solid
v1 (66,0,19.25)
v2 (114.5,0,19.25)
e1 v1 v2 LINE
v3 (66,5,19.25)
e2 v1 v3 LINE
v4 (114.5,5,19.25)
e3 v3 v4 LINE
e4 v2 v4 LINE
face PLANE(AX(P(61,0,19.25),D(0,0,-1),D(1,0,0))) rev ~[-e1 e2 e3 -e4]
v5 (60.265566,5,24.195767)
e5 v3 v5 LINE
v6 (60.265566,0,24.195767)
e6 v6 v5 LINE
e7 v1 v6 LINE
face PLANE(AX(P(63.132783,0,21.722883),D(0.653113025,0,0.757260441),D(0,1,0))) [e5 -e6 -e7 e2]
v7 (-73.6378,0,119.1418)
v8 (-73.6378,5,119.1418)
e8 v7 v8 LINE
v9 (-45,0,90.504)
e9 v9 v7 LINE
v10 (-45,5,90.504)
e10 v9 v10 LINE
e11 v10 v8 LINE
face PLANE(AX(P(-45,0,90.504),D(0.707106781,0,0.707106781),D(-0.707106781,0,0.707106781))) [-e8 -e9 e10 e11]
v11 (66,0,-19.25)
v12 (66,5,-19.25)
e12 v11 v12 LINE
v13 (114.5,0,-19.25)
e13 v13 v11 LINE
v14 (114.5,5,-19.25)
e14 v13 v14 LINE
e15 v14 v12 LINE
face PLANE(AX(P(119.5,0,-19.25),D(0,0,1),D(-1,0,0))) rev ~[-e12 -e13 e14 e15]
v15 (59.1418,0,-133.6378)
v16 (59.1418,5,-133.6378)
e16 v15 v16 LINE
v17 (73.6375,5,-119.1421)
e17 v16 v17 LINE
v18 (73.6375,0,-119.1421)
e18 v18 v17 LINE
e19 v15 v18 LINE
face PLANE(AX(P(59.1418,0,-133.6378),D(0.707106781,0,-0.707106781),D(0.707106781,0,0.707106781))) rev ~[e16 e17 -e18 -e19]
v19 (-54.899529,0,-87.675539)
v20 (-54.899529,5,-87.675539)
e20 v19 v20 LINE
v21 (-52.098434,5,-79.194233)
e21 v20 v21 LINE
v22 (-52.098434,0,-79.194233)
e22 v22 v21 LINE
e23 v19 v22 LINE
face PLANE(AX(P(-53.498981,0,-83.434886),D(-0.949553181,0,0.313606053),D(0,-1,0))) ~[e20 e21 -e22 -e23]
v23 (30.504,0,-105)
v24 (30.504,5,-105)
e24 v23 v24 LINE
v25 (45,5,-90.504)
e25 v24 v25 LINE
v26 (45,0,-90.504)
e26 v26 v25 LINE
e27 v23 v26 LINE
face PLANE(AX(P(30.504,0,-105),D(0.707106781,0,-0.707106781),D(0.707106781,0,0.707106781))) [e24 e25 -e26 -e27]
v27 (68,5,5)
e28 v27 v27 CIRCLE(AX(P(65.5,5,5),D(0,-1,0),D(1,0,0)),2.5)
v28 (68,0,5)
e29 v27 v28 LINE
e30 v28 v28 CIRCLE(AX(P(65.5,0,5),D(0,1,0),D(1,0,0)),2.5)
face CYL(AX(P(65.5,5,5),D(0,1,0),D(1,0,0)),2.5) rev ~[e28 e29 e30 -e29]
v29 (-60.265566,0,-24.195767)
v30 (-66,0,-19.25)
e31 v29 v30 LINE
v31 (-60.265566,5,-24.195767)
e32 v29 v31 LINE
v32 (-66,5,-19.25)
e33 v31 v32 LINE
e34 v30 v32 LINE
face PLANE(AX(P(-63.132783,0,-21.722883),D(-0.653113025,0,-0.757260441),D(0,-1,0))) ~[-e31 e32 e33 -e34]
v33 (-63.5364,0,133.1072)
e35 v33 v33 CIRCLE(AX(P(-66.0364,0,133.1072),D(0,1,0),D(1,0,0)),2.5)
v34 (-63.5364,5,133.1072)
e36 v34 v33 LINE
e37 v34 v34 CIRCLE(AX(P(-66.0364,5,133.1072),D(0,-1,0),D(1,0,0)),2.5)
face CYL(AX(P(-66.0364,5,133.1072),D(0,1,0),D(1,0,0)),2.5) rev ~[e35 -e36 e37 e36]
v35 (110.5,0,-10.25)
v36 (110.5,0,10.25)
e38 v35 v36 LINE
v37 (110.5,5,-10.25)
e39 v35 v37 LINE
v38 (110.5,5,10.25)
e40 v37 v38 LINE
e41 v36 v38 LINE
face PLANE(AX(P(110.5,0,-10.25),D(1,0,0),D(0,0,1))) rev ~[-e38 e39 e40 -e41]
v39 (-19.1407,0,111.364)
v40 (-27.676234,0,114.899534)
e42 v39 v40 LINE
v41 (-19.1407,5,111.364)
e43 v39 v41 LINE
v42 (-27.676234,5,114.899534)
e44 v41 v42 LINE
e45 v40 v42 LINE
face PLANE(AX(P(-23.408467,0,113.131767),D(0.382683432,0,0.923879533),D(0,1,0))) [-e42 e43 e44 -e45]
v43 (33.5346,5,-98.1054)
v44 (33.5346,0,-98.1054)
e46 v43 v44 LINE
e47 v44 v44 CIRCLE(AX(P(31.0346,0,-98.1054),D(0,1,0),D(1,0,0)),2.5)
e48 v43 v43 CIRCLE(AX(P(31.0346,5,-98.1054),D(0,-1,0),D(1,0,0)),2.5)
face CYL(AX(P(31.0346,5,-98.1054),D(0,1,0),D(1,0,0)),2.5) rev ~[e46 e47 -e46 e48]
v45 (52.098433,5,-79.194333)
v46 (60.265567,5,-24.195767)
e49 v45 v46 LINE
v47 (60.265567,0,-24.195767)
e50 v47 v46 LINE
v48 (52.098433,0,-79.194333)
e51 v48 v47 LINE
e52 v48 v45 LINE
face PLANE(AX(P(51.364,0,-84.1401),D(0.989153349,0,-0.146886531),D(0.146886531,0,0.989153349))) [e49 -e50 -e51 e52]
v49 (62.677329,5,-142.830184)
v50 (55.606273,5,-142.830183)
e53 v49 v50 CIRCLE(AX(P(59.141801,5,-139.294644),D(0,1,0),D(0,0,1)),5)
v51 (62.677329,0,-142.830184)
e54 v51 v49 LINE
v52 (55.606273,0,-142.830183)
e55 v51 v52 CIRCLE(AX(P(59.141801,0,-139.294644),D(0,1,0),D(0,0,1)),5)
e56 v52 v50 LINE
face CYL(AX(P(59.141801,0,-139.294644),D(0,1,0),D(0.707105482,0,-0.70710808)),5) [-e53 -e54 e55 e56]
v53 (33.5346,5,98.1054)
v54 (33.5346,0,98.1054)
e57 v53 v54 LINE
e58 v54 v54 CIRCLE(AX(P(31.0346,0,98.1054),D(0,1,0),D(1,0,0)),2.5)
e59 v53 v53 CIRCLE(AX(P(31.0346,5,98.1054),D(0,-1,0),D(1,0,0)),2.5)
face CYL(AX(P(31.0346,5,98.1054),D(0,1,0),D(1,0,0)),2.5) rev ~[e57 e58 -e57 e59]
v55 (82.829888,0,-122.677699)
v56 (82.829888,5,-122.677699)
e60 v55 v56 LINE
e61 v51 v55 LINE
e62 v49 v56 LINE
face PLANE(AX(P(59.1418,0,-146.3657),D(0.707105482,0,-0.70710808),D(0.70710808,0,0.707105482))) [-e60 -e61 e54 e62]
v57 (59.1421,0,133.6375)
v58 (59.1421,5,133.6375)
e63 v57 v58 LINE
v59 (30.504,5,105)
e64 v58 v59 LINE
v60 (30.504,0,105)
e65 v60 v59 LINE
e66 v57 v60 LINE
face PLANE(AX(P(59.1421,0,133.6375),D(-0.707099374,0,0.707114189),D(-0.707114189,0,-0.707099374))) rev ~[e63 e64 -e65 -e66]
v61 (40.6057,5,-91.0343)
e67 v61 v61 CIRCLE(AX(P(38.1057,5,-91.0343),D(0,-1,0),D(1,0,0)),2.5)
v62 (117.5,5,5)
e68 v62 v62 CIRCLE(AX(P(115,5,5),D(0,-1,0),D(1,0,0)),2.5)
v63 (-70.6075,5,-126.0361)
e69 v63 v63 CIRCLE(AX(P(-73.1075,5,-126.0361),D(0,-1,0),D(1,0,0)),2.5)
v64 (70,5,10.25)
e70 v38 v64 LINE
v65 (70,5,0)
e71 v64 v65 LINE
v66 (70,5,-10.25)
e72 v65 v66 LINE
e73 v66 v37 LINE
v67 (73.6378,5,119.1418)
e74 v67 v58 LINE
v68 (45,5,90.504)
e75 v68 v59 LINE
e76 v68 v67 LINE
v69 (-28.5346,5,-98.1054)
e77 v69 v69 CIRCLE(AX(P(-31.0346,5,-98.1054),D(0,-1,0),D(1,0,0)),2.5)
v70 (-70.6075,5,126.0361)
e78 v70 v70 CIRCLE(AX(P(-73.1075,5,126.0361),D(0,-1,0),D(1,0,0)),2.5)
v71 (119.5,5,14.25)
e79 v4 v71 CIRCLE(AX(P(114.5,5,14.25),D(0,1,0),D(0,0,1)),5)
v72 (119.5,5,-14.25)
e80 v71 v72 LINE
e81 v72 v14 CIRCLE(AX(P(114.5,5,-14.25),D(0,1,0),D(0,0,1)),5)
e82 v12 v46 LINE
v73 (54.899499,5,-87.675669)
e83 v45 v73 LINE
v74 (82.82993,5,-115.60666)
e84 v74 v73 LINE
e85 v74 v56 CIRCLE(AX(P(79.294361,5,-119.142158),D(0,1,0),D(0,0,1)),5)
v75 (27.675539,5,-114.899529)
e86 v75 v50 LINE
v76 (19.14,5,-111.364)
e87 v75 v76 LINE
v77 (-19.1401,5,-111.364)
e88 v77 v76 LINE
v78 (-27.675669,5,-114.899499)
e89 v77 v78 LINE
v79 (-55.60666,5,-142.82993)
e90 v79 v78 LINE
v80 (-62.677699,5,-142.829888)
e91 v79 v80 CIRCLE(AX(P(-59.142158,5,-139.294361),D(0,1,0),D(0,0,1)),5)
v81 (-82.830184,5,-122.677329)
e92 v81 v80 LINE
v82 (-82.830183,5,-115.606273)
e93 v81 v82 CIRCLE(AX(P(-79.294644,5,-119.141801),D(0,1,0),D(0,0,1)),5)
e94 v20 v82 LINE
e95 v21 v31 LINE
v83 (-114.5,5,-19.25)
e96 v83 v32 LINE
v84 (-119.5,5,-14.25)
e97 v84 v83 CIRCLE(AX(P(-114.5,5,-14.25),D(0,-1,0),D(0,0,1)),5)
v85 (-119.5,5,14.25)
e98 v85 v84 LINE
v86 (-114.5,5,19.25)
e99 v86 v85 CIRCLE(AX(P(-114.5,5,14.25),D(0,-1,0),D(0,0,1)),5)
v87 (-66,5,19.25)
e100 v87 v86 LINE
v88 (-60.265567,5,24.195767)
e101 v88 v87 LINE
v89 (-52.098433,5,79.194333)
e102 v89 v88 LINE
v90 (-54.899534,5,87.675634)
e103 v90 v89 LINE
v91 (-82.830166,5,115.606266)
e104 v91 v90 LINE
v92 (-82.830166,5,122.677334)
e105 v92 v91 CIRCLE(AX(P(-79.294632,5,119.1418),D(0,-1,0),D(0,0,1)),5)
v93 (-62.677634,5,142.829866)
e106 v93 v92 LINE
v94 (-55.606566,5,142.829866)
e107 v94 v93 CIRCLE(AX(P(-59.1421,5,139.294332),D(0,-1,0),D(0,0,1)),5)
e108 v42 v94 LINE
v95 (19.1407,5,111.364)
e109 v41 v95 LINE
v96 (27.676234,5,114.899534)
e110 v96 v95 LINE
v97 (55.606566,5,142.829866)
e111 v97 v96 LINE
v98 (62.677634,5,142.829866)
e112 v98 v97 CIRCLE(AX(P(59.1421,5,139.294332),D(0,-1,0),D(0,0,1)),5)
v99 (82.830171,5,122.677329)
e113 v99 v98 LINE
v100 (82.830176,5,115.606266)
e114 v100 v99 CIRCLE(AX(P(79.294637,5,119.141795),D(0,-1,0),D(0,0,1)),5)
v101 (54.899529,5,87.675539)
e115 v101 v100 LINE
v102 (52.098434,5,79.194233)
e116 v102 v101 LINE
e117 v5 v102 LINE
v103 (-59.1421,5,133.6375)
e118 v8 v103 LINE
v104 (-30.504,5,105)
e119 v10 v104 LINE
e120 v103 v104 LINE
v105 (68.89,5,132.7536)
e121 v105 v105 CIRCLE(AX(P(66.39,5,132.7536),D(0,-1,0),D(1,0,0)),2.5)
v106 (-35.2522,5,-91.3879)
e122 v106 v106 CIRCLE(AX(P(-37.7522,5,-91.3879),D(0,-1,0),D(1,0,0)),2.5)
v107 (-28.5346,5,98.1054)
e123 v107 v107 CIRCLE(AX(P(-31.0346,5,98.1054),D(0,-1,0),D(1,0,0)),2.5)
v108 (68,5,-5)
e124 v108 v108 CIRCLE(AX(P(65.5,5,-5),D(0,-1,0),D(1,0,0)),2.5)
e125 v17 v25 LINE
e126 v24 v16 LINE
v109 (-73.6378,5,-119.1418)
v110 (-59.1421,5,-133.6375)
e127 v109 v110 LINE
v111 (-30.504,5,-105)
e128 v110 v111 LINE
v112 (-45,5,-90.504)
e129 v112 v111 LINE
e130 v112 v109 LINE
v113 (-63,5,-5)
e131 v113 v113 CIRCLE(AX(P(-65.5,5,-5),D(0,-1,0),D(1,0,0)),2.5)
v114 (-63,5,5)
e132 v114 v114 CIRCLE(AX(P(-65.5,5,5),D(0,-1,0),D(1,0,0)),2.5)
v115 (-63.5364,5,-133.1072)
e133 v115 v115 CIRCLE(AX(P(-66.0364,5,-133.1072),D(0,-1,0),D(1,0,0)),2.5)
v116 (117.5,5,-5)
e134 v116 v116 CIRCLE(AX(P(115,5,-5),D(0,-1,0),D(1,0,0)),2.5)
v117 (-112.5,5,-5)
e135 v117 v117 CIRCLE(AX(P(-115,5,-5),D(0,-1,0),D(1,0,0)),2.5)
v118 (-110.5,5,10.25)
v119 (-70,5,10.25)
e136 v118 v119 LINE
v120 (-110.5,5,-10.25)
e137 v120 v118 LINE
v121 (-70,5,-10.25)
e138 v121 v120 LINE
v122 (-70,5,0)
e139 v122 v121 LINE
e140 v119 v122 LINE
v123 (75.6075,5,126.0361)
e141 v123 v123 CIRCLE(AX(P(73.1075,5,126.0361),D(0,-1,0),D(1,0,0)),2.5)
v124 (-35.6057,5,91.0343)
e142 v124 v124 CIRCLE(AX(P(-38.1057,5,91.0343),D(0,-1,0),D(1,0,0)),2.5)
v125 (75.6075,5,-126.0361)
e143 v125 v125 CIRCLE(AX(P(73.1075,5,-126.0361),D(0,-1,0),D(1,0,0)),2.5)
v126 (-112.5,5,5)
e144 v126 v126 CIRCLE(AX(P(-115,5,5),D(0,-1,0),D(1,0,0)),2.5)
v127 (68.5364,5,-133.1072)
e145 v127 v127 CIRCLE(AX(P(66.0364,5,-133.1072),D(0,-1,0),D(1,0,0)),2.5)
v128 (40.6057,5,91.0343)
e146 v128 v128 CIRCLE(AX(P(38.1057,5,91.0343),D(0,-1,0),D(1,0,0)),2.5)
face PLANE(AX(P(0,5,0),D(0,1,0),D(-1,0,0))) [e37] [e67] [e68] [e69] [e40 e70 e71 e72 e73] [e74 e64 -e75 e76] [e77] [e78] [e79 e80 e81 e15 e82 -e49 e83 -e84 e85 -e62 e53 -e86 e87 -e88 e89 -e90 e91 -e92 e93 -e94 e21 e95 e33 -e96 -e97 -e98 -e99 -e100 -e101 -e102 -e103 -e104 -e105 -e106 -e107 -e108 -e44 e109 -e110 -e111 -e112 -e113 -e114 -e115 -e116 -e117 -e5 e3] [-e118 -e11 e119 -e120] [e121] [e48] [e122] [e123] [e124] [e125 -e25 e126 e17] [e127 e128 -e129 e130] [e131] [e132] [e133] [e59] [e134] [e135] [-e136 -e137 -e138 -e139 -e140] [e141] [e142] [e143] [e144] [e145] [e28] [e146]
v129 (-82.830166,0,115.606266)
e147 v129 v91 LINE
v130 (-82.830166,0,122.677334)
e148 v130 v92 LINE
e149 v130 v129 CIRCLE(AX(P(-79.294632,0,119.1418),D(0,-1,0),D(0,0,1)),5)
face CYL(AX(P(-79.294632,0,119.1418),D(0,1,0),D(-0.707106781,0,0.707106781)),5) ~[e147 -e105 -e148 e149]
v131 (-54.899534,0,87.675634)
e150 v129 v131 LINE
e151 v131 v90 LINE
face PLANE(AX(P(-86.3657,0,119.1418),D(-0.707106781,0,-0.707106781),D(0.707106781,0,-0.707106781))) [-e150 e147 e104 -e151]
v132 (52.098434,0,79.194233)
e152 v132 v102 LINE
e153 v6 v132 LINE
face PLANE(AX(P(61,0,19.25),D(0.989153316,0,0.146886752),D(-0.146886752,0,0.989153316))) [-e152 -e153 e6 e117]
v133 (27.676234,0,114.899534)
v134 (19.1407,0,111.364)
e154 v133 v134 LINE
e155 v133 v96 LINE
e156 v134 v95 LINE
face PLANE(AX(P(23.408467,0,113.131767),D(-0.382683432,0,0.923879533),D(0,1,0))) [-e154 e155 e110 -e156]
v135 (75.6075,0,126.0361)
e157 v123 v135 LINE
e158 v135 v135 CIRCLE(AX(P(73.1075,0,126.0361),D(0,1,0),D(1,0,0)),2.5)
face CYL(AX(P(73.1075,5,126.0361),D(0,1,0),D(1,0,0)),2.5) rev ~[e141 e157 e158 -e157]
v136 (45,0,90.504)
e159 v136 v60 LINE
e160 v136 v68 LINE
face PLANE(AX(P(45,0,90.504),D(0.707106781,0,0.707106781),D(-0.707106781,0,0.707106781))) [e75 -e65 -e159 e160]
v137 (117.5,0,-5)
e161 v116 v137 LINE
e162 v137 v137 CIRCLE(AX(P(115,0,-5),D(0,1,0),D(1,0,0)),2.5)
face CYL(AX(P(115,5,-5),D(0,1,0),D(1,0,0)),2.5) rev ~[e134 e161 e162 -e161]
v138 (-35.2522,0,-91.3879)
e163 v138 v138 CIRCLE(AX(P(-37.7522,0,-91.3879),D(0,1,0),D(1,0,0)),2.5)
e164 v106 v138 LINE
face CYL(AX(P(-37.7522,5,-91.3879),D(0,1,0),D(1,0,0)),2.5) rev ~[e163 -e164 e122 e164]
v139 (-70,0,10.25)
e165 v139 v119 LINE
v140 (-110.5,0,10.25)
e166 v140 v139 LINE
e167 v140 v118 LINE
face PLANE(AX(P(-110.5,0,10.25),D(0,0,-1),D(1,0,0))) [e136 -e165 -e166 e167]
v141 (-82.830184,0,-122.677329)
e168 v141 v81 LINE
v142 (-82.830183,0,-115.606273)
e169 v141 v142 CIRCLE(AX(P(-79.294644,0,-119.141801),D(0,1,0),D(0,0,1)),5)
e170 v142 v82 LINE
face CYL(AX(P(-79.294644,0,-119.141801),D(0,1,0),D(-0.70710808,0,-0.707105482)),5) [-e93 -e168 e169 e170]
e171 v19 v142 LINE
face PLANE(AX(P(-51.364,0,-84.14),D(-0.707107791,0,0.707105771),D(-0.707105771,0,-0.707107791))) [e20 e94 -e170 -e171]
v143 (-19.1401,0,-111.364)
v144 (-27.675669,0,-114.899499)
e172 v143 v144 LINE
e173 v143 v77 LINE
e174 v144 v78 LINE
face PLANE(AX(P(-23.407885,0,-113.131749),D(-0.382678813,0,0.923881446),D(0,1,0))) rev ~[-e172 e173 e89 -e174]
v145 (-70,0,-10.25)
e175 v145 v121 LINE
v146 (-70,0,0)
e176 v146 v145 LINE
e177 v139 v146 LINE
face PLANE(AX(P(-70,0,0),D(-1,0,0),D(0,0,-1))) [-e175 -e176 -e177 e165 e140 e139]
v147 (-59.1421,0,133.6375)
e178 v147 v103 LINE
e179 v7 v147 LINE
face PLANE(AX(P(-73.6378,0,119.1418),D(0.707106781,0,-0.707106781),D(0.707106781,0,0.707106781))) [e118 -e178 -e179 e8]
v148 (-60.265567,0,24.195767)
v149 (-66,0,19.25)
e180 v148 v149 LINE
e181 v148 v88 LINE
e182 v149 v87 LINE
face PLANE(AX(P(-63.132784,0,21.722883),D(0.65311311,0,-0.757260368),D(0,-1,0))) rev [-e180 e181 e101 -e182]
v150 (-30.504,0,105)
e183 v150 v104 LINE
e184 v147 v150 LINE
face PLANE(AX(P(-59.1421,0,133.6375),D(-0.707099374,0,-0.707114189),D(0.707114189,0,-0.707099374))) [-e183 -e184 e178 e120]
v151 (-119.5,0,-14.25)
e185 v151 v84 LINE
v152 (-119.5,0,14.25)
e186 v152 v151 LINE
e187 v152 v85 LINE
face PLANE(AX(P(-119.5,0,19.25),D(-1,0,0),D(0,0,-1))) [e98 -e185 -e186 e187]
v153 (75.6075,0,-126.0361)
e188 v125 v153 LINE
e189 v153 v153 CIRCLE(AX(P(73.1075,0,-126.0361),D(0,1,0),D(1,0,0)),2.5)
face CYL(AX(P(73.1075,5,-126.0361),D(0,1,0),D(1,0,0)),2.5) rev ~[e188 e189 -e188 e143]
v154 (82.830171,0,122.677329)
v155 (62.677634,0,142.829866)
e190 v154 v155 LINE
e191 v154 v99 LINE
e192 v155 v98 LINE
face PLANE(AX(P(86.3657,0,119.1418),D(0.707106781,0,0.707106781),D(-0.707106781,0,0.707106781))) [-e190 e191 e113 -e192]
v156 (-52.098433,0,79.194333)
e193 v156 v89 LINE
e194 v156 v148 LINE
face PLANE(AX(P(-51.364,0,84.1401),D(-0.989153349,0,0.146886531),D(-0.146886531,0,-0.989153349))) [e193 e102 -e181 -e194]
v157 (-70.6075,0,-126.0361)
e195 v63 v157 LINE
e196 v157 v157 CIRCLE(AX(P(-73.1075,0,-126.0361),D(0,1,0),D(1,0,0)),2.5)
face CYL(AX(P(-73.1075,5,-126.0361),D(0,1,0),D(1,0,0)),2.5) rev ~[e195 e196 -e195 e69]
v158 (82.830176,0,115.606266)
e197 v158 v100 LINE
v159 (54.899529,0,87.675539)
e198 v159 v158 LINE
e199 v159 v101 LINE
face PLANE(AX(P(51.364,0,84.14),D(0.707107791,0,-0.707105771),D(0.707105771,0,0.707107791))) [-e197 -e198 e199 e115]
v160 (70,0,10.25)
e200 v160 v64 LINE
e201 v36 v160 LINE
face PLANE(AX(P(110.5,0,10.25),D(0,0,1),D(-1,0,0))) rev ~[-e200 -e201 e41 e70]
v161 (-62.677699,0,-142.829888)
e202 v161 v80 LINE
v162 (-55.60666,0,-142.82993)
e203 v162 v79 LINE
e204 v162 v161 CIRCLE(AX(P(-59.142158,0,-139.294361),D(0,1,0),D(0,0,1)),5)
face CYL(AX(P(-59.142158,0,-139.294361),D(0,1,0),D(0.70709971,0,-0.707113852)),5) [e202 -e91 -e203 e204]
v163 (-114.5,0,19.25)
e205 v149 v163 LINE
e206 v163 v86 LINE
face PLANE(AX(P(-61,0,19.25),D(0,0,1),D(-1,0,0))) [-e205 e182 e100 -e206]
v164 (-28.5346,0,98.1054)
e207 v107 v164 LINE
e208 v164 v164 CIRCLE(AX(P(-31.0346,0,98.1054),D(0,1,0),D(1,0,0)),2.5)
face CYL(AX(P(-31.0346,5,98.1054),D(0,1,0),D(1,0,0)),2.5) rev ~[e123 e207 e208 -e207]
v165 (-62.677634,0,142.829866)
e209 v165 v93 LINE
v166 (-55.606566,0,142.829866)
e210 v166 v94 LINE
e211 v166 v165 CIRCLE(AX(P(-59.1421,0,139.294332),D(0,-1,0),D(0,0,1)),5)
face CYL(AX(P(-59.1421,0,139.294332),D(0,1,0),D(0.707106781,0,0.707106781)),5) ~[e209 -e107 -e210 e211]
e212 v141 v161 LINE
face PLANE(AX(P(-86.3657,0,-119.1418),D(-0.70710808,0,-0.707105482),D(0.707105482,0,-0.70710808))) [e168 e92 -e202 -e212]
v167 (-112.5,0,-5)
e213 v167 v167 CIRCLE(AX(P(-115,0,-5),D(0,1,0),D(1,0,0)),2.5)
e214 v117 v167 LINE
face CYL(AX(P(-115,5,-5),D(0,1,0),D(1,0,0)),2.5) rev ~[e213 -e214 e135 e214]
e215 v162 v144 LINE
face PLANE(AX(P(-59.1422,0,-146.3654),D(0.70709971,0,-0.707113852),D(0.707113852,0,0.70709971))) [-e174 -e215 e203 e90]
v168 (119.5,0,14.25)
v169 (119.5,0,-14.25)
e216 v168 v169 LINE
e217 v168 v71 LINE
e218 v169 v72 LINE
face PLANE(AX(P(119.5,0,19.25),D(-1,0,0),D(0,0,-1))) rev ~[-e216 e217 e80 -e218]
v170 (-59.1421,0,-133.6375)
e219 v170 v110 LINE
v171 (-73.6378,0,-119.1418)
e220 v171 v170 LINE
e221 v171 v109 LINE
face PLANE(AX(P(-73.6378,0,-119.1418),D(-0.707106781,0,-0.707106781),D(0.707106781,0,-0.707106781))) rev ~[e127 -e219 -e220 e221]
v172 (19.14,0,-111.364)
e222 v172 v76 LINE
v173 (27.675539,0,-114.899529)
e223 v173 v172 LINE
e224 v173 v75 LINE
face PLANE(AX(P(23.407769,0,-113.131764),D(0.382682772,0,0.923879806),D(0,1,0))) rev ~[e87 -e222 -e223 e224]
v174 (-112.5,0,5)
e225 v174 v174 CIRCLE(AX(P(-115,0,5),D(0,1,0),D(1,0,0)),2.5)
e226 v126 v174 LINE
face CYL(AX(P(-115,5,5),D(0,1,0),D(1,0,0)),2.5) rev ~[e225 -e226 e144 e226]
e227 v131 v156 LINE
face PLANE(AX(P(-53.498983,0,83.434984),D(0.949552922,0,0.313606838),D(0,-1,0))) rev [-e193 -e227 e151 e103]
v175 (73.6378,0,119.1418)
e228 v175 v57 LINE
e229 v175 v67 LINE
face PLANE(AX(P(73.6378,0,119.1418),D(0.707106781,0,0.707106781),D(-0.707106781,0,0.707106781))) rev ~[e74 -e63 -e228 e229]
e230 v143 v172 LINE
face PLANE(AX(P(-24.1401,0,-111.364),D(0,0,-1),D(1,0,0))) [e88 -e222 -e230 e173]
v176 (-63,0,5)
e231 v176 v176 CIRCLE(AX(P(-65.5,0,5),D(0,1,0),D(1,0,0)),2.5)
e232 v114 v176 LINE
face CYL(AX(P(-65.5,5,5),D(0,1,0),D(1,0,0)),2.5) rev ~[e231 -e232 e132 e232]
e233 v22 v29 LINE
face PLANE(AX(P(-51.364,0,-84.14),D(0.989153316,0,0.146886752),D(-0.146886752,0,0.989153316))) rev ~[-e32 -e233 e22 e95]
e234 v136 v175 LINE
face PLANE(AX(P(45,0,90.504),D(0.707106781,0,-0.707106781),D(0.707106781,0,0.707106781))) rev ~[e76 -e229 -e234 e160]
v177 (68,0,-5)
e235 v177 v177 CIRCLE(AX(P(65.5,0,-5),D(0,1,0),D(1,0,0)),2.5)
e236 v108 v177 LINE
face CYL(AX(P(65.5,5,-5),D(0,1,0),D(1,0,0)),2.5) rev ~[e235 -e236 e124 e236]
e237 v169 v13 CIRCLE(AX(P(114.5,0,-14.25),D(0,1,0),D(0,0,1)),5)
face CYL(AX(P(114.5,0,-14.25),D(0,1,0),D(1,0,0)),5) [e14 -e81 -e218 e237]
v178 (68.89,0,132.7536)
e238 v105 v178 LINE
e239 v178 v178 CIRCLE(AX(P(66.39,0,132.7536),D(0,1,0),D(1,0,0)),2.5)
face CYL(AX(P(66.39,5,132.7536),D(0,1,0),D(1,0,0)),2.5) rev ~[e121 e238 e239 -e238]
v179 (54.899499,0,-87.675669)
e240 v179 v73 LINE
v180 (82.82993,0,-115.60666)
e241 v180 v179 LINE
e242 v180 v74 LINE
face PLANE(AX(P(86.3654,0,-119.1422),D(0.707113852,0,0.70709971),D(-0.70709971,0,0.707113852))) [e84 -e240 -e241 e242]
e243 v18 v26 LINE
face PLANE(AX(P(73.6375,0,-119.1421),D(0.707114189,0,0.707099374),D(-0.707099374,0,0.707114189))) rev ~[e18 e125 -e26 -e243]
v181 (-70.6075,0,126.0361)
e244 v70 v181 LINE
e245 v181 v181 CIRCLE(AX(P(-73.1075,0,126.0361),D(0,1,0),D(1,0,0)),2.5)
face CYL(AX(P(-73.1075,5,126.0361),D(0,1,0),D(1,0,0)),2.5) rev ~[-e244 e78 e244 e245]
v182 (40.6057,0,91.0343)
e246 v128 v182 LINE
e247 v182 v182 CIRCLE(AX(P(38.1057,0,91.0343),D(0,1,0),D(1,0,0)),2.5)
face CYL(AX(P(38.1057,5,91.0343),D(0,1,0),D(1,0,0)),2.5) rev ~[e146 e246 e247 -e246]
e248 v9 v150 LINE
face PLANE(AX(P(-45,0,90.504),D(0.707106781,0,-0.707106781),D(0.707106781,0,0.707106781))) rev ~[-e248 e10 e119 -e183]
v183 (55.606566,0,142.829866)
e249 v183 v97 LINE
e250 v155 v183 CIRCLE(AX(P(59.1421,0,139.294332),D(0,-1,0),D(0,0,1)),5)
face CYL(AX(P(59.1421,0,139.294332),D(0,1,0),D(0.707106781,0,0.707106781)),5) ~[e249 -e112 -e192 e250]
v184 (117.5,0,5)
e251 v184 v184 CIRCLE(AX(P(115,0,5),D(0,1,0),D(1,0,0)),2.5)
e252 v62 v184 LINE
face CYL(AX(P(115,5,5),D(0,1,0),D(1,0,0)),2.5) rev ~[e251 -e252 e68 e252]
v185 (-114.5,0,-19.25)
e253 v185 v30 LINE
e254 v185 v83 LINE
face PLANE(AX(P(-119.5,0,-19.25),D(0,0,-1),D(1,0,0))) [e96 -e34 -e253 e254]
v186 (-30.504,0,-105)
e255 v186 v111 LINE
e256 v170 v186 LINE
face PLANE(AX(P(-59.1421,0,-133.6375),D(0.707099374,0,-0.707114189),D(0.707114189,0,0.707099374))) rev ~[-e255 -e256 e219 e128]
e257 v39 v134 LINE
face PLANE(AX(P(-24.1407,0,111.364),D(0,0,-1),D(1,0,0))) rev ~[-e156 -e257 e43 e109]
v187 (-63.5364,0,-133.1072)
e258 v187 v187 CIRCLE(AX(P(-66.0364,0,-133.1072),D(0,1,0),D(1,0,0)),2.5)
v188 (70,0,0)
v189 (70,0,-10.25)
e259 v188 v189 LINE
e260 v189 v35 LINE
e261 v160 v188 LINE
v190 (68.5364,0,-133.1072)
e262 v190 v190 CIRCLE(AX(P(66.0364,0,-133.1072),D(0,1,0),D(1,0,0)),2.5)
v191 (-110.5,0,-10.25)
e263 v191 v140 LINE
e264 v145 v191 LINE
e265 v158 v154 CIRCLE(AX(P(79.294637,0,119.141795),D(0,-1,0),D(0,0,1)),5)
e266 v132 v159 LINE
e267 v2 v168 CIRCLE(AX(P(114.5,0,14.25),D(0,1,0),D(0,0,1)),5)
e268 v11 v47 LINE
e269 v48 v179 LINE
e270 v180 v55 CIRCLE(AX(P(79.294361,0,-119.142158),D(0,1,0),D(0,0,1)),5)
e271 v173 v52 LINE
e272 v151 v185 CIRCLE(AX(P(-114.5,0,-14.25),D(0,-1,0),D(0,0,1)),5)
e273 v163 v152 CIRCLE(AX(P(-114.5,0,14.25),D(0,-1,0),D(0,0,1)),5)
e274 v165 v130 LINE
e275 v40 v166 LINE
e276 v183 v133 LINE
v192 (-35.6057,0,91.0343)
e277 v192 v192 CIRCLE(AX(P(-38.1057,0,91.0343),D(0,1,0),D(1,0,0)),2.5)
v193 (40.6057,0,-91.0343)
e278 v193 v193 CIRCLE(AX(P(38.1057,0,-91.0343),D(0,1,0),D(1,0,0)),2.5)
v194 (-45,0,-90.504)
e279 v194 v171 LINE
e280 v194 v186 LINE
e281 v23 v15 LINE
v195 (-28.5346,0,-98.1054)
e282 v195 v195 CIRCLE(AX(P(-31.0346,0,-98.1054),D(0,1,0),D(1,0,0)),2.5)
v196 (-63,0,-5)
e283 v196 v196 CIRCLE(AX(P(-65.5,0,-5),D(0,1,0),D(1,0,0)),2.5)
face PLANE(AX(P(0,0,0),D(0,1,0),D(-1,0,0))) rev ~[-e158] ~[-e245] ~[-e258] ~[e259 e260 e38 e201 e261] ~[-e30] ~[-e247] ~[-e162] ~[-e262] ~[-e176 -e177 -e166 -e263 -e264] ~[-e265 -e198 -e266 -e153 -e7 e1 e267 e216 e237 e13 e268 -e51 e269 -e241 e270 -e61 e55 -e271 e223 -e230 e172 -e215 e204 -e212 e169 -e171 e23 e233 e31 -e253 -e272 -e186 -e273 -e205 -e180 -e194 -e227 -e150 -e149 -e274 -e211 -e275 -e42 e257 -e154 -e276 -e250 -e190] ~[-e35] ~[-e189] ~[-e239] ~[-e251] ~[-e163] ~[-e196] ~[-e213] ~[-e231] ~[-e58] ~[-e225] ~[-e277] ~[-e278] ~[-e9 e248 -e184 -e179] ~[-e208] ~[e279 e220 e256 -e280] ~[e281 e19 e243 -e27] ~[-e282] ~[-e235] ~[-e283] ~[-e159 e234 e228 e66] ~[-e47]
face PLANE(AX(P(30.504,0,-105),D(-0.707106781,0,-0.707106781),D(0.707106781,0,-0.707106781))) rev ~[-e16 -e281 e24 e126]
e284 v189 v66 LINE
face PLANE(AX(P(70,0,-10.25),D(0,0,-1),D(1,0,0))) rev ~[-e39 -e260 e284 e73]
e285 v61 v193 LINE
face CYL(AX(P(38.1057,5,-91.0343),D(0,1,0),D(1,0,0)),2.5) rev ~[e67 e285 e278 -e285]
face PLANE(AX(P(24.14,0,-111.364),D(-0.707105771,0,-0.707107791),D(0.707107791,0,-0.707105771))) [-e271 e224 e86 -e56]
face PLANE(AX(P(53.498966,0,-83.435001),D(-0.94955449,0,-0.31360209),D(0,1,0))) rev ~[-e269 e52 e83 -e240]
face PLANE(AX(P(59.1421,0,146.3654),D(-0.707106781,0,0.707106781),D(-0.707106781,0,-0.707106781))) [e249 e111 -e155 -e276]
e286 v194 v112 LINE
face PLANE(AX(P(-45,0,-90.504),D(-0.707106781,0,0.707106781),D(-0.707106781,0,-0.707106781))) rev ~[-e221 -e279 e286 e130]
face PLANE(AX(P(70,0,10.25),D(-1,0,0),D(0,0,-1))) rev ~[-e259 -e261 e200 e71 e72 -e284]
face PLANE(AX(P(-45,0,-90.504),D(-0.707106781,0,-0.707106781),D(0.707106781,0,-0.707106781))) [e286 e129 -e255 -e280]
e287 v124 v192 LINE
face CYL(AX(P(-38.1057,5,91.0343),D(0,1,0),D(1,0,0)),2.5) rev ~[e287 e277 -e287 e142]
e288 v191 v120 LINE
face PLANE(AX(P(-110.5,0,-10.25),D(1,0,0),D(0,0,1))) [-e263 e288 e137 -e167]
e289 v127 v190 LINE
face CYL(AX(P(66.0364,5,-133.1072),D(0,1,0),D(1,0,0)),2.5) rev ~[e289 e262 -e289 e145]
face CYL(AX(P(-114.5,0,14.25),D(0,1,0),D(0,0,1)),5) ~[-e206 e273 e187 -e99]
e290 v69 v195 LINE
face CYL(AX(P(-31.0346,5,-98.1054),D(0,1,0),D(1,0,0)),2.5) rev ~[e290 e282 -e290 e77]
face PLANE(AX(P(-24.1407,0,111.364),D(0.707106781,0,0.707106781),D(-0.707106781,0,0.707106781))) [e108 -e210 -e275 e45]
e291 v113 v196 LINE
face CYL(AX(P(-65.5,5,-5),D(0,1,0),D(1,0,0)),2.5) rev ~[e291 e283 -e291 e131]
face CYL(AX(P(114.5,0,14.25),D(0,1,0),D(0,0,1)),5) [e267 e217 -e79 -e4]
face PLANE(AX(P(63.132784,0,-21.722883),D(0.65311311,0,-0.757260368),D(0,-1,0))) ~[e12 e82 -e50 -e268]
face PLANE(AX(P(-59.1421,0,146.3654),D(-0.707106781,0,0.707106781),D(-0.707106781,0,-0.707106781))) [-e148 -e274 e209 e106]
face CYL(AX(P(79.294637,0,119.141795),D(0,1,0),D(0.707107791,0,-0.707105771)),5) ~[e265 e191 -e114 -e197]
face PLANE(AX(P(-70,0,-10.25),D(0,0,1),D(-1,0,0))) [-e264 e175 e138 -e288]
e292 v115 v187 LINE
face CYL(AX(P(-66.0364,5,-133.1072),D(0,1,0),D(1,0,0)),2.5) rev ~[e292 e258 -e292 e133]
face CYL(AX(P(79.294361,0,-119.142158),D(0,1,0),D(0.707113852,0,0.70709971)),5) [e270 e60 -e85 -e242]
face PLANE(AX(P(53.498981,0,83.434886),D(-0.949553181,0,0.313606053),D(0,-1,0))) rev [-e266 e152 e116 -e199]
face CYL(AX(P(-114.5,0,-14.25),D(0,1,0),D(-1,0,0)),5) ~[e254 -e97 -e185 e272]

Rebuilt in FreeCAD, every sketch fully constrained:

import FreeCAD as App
import Part
import Sketcher
from FreeCAD import Vector
Q = App.Units.Quantity


def edges_at(feature, points):
    """Names of the edges that pass closest to the given points."""
    edges = feature.Shape.Edges
    near = lambda p: min(range(len(edges)), key=lambda i: edges[i].distToShape(Part.Vertex(*p))[0])
    return sorted({f"Edge{near(p) + 1}" for p in points})


def add_polygon(sketch, points):
    """Adds a closed chain of lines whose ends are joined by coincident constraints."""
    first, n = sketch.GeometryCount, len(points)
    for a, b in zip(points, points[1:] + points[:1]):
        sketch.addGeometry(Part.LineSegment(App.Vector(*a, 0), App.Vector(*b, 0)), False)
    for i in range(n):
        sketch.addConstraint(Sketcher.Constraint("Coincident", first + i, 2, first + (i + 1) % n, 1))

doc = App.newDocument("Part")
body = doc.addObject("PartDesign::Body", "Body")

# Sketch on XZ plane
sketch1 = body.newObject("Sketcher::SketchObject", "Sketch")
sketch1.AttachmentSupport = (doc.getObject("XZ_Plane"), [""])
sketch1.MapMode = "FlatFace"
add_polygon(sketch1, [(51, 84), (61, 19), (120, 19), (120, -19), (61, -19), (51, -84), (86, -119), (59, -146), (24, -111), (-24, -111), (-59, -146), (-86, -119), (-51, -84), (-61, -19), (-120, -19), (-120, 19), (-61, 19), (-51, 84), (-86, 119), (-59, 146), (-24, 111), (24, 111), (59, 146), (86, 119)])  # lines 0-23
add_polygon(sketch1, [(-45, 91), (-31, 105), (-59, 134), (-74, 119)])  # lines 24-27
add_polygon(sketch1, [(-31, -105), (-45, -91), (-74, -119), (-59, -134)])  # lines 28-31
add_polygon(sketch1, [(45, -91), (31, -105), (59, -134), (74, -119)])  # lines 32-35
add_polygon(sketch1, [(31, 105), (45, 91), (74, 119), (59, 134)])  # lines 36-39
add_polygon(sketch1, [(70, 0), (70, -10), (110, -10), (110, 10), (70, 10)])  # lines 40-44
add_polygon(sketch1, [(-70, 0), (-70, 10), (-110, 10), (-110, -10), (-70, -10)])  # lines 45-49
sketch1.addConstraint(Sketcher.Constraint("Horizontal", 1))
sketch1.addConstraint(Sketcher.Constraint("Vertical", 2))
sketch1.addConstraint(Sketcher.Constraint("Horizontal", 3))
sketch1.addConstraint(Sketcher.Constraint("Horizontal", 8))
sketch1.addConstraint(Sketcher.Constraint("Horizontal", 13))
sketch1.addConstraint(Sketcher.Constraint("Vertical", 14))
sketch1.addConstraint(Sketcher.Constraint("Horizontal", 15))
sketch1.addConstraint(Sketcher.Constraint("Horizontal", 20))
sketch1.addConstraint(Sketcher.Constraint("Vertical", 40))
sketch1.addConstraint(Sketcher.Constraint("Horizontal", 41))
sketch1.addConstraint(Sketcher.Constraint("Vertical", 42))
sketch1.addConstraint(Sketcher.Constraint("Horizontal", 43))
sketch1.addConstraint(Sketcher.Constraint("Vertical", 44))
sketch1.addConstraint(Sketcher.Constraint("Vertical", 45))
sketch1.addConstraint(Sketcher.Constraint("Horizontal", 46))
sketch1.addConstraint(Sketcher.Constraint("Vertical", 47))
sketch1.addConstraint(Sketcher.Constraint("Horizontal", 48))
sketch1.addConstraint(Sketcher.Constraint("Vertical", 49))
sketch1.addConstraint(Sketcher.Constraint("Symmetric", 0, 2, 12, 2, -1, 1))
sketch1.addConstraint(Sketcher.Constraint("Symmetric", 2, 2, 14, 2, -1, 1))
sketch1.addConstraint(Sketcher.Constraint("Symmetric", 4, 2, 16, 2, -1, 1))
sketch1.addConstraint(Sketcher.Constraint("Symmetric", 9, 2, 21, 2, -1, 1))
sketch1.addConstraint(Sketcher.Constraint("Symmetric", 10, 2, 22, 2, -1, 1))
sketch1.addConstraint(Sketcher.Constraint("Symmetric", 11, 2, 23, 2, -1, 1))
sketch1.addConstraint(Sketcher.Constraint("Symmetric", 24, 2, 32, 2, -1, 1))
sketch1.addConstraint(Sketcher.Constraint("Symmetric", 27, 2, 35, 2, -1, 1))
sketch1.addConstraint(Sketcher.Constraint("Symmetric", 28, 2, 36, 2, -1, 1))
sketch1.addConstraint(Sketcher.Constraint("Symmetric", 29, 2, 37, 2, -1, 1))
sketch1.addConstraint(Sketcher.Constraint("Symmetric", 30, 2, 38, 2, -1, 1))
sketch1.addConstraint(Sketcher.Constraint("Symmetric", 31, 2, 39, 2, -1, 1))
sketch1.addConstraint(Sketcher.Constraint("Symmetric", 40, 2, 45, 2, -1, 1))
sketch1.addConstraint(Sketcher.Constraint("Symmetric", 42, 2, 47, 2, -1, 1))
sketch1.addConstraint(Sketcher.Constraint("Symmetric", 4, 2, 11, 2, -2))
sketch1.addConstraint(Sketcher.Constraint("Symmetric", 3, 2, 12, 2, -2))
sketch1.addConstraint(Sketcher.Constraint("Symmetric", 18, 2, 21, 2, -2))
sketch1.addConstraint(Sketcher.Constraint("Symmetric", 17, 2, 22, 2, -2))
sketch1.addConstraint(Sketcher.Constraint("Symmetric", 31, 2, 32, 2, -2))
sketch1.addConstraint(Sketcher.Constraint("Symmetric", 28, 2, 35, 2, -2))
sketch1.addConstraint(Sketcher.Constraint("Symmetric", 26, 2, 37, 2, -2))
sketch1.addConstraint(Sketcher.Constraint("Symmetric", 25, 2, 38, 2, -2))
sketch1.addConstraint(Sketcher.Constraint("PointOnObject", 44, 2, -1))
sketch1.addConstraint(Sketcher.Constraint("PointOnObject", 49, 2, -1))
sketch1.addConstraint(Sketcher.Constraint("Perpendicular", 5, 6))
sketch1.addConstraint(Sketcher.Constraint("Perpendicular", 6, 7))
sketch1.addConstraint(Sketcher.Constraint("Perpendicular", 7, 9))
sketch1.addConstraint(Sketcher.Constraint("Perpendicular", 9, 10))
sketch1.addConstraint(Sketcher.Constraint("Perpendicular", 10, 11))
sketch1.addConstraint(Sketcher.Constraint("Parallel", 4, 16))
sketch1.addConstraint(Sketcher.Constraint("Perpendicular", 11, 17))
sketch1.addConstraint(Sketcher.Constraint("Perpendicular", 18, 19))
sketch1.addConstraint(Sketcher.Constraint("Perpendicular", 19, 21))
sketch1.addConstraint(Sketcher.Constraint("Parallel", 23, 24))
sketch1.addConstraint(Sketcher.Constraint("Perpendicular", 24, 25))
sketch1.addConstraint(Sketcher.Constraint("Perpendicular", 25, 26))
sketch1.addConstraint(Sketcher.Constraint("Perpendicular", 26, 27))
sketch1.addConstraint(Sketcher.Constraint("Perpendicular", 32, 33))
sketch1.addConstraint(Sketcher.Constraint("Perpendicular", 33, 34))
sketch1.addConstraint(Sketcher.Constraint("Perpendicular", 34, 35))
sketch1.addConstraint(Sketcher.Constraint("Horizontal", 22, 2, 26, 2))
sketch1.addConstraint(Sketcher.Constraint("Horizontal", 5, 2, 34, 2))
sketch1.addConstraint(Sketcher.Constraint("Horizontal", 43, 2, 45, 2))
sketch1.addConstraint(Sketcher.Constraint("Vertical", 18, 2, 25, 2))
sketch1.addConstraint(Sketcher.Constraint("Vertical", 6, 2, 33, 2))
sketch1.addConstraint(Sketcher.Constraint("Equal", 5, 7))
sketch1.addConstraint(Sketcher.Constraint("Equal", 7, 9))
sketch1.addConstraint(Sketcher.Constraint("DistanceX", 41, 1, 41, 2, Q("40.5 mm")))
sketch1.addConstraint(Sketcher.Constraint("DistanceY", 42, 1, 42, 2, Q("20.5 mm")))
sketch1.addConstraint(Sketcher.Constraint("DistanceX", 27, 2, -1, 1, Q("45 mm")))
sketch1.addConstraint(Sketcher.Constraint("DistanceX", 3, 2, 40, 2, Q("9 mm")))
sketch1.addConstraint(Sketcher.Constraint("DistanceY", 3, 2, 40, 2, Q("9 mm")))
sketch1.addConstraint(Sketcher.Constraint("DistanceX", 41, 2, 2, 2, Q("9 mm")))
sketch1.addConstraint(Sketcher.Constraint("Distance", 25, Q("40.5 mm")))
sketch1.addConstraint(Sketcher.Constraint("Distance", 26, Q("20.5 mm")))
sketch1.addConstraint(Sketcher.Constraint("DistanceX", -1, 1, 0, 2, Q("61 mm")))
sketch1.addConstraint(Sketcher.Constraint("DistanceY", -1, 1, 24, 2, Q("105 mm")))
sketch1.addConstraint(Sketcher.Constraint("Distance", 5, Q("49.5 mm")))
sketch1.addConstraint(Sketcher.Constraint("Distance", 6, Q("38.5 mm")))
sketch1.addConstraint(Sketcher.Constraint("DistanceY", 27, 2, 19, 2, Q("20.86 mm")))
pad1 = body.newObject("PartDesign::Pad", "Pad")
pad1.Profile = sketch1
pad1.Length = 5
pad1.Reversed = True

# Sketch on XZ plane
sketch2 = body.newObject("Sketcher::SketchObject", "Sketch001")
sketch2.AttachmentSupport = (doc.getObject("XZ_Plane"), [""])
sketch2.MapMode = "FlatFace"
sketch2.AttachmentOffset = App.Placement(Vector(0, 0, -5), App.Rotation())
sketch2.addGeometry(Part.Circle(Vector(-66, 133.1, 0), Vector(0, 0, 1), 2.5), False)
sketch2.addGeometry(Part.Circle(Vector(-73.1, 126, 0), Vector(0, 0, 1), 2.5), False)
sketch2.addGeometry(Part.Circle(Vector(-38.1, 91, 0), Vector(0, 0, 1), 2.5), False)
sketch2.addGeometry(Part.Circle(Vector(-31, 98.1, 0), Vector(0, 0, 1), 2.5), False)
sketch2.addGeometry(Part.Circle(Vector(-73.1, -126, 0), Vector(0, 0, 1), 2.5), False)
sketch2.addGeometry(Part.Circle(Vector(-66, -133.1, 0), Vector(0, 0, 1), 2.5), False)
sketch2.addGeometry(Part.Circle(Vector(-31, -98.1, 0), Vector(0, 0, 1), 2.5), False)
sketch2.addGeometry(Part.Circle(Vector(-37.8, -91.4, 0), Vector(0, 0, 1), 2.5), False)
sketch2.addGeometry(Part.Circle(Vector(66, -133.1, 0), Vector(0, 0, 1), 2.5), False)
sketch2.addGeometry(Part.Circle(Vector(73.1, -126, 0), Vector(0, 0, 1), 2.5), False)
sketch2.addGeometry(Part.Circle(Vector(38.1, -91, 0), Vector(0, 0, 1), 2.5), False)
sketch2.addGeometry(Part.Circle(Vector(31, -98.1, 0), Vector(0, 0, 1), 2.5), False)
sketch2.addGeometry(Part.Circle(Vector(115, -5, 0), Vector(0, 0, 1), 2.5), False)
sketch2.addGeometry(Part.Circle(Vector(115, 5, 0), Vector(0, 0, 1), 2.5), False)
sketch2.addGeometry(Part.Circle(Vector(65.5, 5, 0), Vector(0, 0, 1), 2.5), False)
sketch2.addGeometry(Part.Circle(Vector(65.5, -5, 0), Vector(0, 0, 1), 2.5), False)
sketch2.addGeometry(Part.Circle(Vector(-115, 5, 0), Vector(0, 0, 1), 2.5), False)
sketch2.addGeometry(Part.Circle(Vector(-115, -5, 0), Vector(0, 0, 1), 2.5), False)
sketch2.addGeometry(Part.Circle(Vector(-65.5, -5, 0), Vector(0, 0, 1), 2.5), False)
sketch2.addGeometry(Part.Circle(Vector(-65.5, 5, 0), Vector(0, 0, 1), 2.5), False)
sketch2.addGeometry(Part.Circle(Vector(31, 98.1, 0), Vector(0, 0, 1), 2.5), False)
sketch2.addGeometry(Part.Circle(Vector(38.1, 91, 0), Vector(0, 0, 1), 2.5), False)
sketch2.addGeometry(Part.Circle(Vector(73.1, 126, 0), Vector(0, 0, 1), 2.5), False)
sketch2.addGeometry(Part.Circle(Vector(66.4, 132.8, 0), Vector(0, 0, 1), 2.5), False)
sketch2.addConstraint(Sketcher.Constraint("Equal", 0, 1))
sketch2.addConstraint(Sketcher.Constraint("Equal", 1, 2))
sketch2.addConstraint(Sketcher.Constraint("Equal", 2, 3))
sketch2.addConstraint(Sketcher.Constraint("Equal", 3, 4))
sketch2.addConstraint(Sketcher.Constraint("Equal", 4, 5))
sketch2.addConstraint(Sketcher.Constraint("Equal", 5, 6))
sketch2.addConstraint(Sketcher.Constraint("Equal", 6, 7))
sketch2.addConstraint(Sketcher.Constraint("Equal", 7, 8))
sketch2.addConstraint(Sketcher.Constraint("Equal", 8, 9))
sketch2.addConstraint(Sketcher.Constraint("Equal", 9, 10))
sketch2.addConstraint(Sketcher.Constraint("Equal", 10, 11))
sketch2.addConstraint(Sketcher.Constraint("Equal", 11, 12))
sketch2.addConstraint(Sketcher.Constraint("Equal", 12, 13))
sketch2.addConstraint(Sketcher.Constraint("Equal", 13, 14))
sketch2.addConstraint(Sketcher.Constraint("Equal", 14, 15))
sketch2.addConstraint(Sketcher.Constraint("Equal", 15, 16))
sketch2.addConstraint(Sketcher.Constraint("Equal", 16, 17))
sketch2.addConstraint(Sketcher.Constraint("Equal", 17, 18))
sketch2.addConstraint(Sketcher.Constraint("Equal", 18, 19))
sketch2.addConstraint(Sketcher.Constraint("Equal", 19, 20))
sketch2.addConstraint(Sketcher.Constraint("Equal", 20, 21))
sketch2.addConstraint(Sketcher.Constraint("Equal", 21, 22))
sketch2.addConstraint(Sketcher.Constraint("Equal", 22, 23))
sketch2.addConstraint(Sketcher.Constraint("Symmetric", 0, 3, 8, 3, -1, 1))
sketch2.addConstraint(Sketcher.Constraint("Symmetric", 1, 3, 9, 3, -1, 1))
sketch2.addConstraint(Sketcher.Constraint("Symmetric", 2, 3, 10, 3, -1, 1))
sketch2.addConstraint(Sketcher.Constraint("Symmetric", 3, 3, 11, 3, -1, 1))
sketch2.addConstraint(Sketcher.Constraint("Symmetric", 12, 3, 16, 3, -1, 1))
sketch2.addConstraint(Sketcher.Constraint("Symmetric", 13, 3, 17, 3, -1, 1))
sketch2.addConstraint(Sketcher.Constraint("Symmetric", 14, 3, 18, 3, -1, 1))
sketch2.addConstraint(Sketcher.Constraint("Symmetric", 15, 3, 19, 3, -1, 1))
sketch2.addConstraint(Sketcher.Constraint("Symmetric", 6, 3, 20, 3, -1, 1))
sketch2.addConstraint(Sketcher.Constraint("Symmetric", 4, 3, 22, 3, -1, 1))
sketch2.addConstraint(Sketcher.Constraint("Symmetric", 5, 3, 8, 3, -2))
sketch2.addConstraint(Sketcher.Constraint("Symmetric", 4, 3, 9, 3, -2))
sketch2.addConstraint(Sketcher.Constraint("Symmetric", 6, 3, 11, 3, -2))
sketch2.addConstraint(Sketcher.Constraint("Symmetric", 13, 3, 16, 3, -2))
sketch2.addConstraint(Sketcher.Constraint("Symmetric", 15, 3, 18, 3, -2))
sketch2.addConstraint(Sketcher.Constraint("Symmetric", 2, 3, 21, 3, -2))
sketch2.addConstraint(Sketcher.Constraint("Horizontal", 13, 3, 14, 3))
sketch2.addConstraint(Sketcher.Constraint("Diameter", 0, Q("5 mm")))
sketch2.addConstraint(Sketcher.Constraint("DistanceY", 12, 3, -1, 1, Q("5 mm")))
sketch2.addConstraint(Sketcher.Constraint("DistanceX", -1, 1, 12, 3, Q("115 mm")))
sketch2.addConstraint(Sketcher.Constraint("DistanceX", -1, 1, 14, 3, Q("65.5 mm")))
sketch2.addConstraint(Sketcher.Constraint("DistanceX", -1, 1, 23, 3, Q("66.39 mm")))
sketch2.addConstraint(Sketcher.Constraint("DistanceY", -1, 1, 1, 3, Q("126.036 mm")))
sketch2.addConstraint(Sketcher.Constraint("DistanceY", 7, 3, -1, 1, Q("91.388 mm")))
sketch2.addConstraint(Sketcher.Constraint("DistanceX", 1, 3, 0, 3, Q("7.071 mm")))
sketch2.addConstraint(Sketcher.Constraint("DistanceY", 1, 3, 0, 3, Q("7.071 mm")))
sketch2.addConstraint(Sketcher.Constraint("DistanceY", 2, 3, 0, 3, Q("42.073 mm")))
sketch2.addConstraint(Sketcher.Constraint("DistanceX", 2, 3, 3, 3, Q("7.071 mm")))
sketch2.addConstraint(Sketcher.Constraint("DistanceY", 2, 3, 3, 3, Q("7.071 mm")))
sketch2.addConstraint(Sketcher.Constraint("DistanceX", 1, 3, 3, 3, Q("42.073 mm")))
sketch2.addConstraint(Sketcher.Constraint("DistanceX", 6, 3, 8, 3, Q("97.071 mm")))
sketch2.addConstraint(Sketcher.Constraint("DistanceX", 7, 3, 10, 3, Q("75.858 mm")))
sketch2.addConstraint(Sketcher.Constraint("DistanceY", -1, 1, 23, 3, Q("132.7536 mm")))
pocket1 = body.newObject("PartDesign::Pocket", "Pocket")
pocket1.Profile = sketch2
pocket1.Length = 10
pocket1.Reversed = True
doc.recompute()

fillet = body.newObject("PartDesign::Fillet", "Fillet")
fillet.Base = (pocket1, edges_at(pocket1, [
    (-59.142, 2.5, 146.365),
    (-86.366, 2.5, 119.142),
    (59.142, 2.5, 146.365),
    (86.366, 2.5, 119.142),
    (119.5, 2.5, 19.25),
    (119.5, 2.5, -19.25),
    (86.365, 2.5, -119.142),
    (59.142, 2.5, -146.366),
    (-59.142, 2.5, -146.365),
    (-86.366, 2.5, -119.142),
    (-119.5, 2.5, -19.25),
    (-119.5, 2.5, 19.25),
]))
fillet.Radius = 5
doc.recompute()

chamfer = body.newObject("PartDesign::Chamfer", "Chamfer")
chamfer.Base = (fillet, edges_at(fillet, [
    (-24.141, 2.5, 111.364),
    (24.141, 2.5, 111.364),
    (51.364, 2.5, 84.14),
    (61, 2.5, 19.25),
    (61, 2.5, -19.25),
    (51.364, 2.5, -84.14),
    (24.14, 2.5, -111.364),
    (-24.14, 2.5, -111.364),
    (-51.364, 2.5, -84.14),
    (-61, 2.5, -19.25),
    (-61, 2.5, 19.25),
    (-51.364, 2.5, 84.14),
]))
chamfer.Size = 5

doc.recompute()
